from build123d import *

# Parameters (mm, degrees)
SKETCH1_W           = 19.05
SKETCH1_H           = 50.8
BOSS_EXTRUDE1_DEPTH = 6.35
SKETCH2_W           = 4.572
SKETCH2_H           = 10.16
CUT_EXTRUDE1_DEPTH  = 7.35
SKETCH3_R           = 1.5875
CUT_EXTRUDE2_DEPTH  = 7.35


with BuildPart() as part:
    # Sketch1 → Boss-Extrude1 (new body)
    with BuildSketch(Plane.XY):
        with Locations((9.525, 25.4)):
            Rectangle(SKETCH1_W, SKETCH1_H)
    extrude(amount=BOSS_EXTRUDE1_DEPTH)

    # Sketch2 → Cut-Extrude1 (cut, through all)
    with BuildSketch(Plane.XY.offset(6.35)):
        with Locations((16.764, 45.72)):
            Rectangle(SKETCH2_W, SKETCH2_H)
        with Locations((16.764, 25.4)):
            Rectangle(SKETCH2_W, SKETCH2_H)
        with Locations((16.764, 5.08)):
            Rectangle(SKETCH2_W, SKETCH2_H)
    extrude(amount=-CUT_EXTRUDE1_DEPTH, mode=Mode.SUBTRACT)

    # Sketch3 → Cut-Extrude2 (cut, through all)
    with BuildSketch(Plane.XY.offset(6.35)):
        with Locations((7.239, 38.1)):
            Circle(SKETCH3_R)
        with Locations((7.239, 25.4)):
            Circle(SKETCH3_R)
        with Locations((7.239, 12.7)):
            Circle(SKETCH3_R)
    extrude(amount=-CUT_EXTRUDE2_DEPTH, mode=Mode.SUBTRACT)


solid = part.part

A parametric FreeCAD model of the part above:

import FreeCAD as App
import Part
import Sketcher
Q = App.Units.Quantity

doc = App.newDocument("Part")
params = doc.addObject("Spreadsheet::Sheet", "Params")
for row, (alias, value) in enumerate([
    ("sketch1_height", "2 in"),
    ("sketch1_width", "0.75 in"),
    ("pad1_length", "0.25 in"),
    ("sketch2_height", "0.4 in"),
    ("sketch2_width", "0.18 in"),
    ("sketch3_diameter", "0.125 in"),
], start=1):
    params.set(f"A{row}", alias)
    params.set(f"B{row}", "=" + value)
    params.setAlias(f"B{row}", alias)

body = doc.addObject("PartDesign::Body", "Body")

# Sketch on XY plane
sketch1 = body.newObject("Sketcher::SketchObject", "Sketch")
sketch1.AttachmentSupport = (doc.getObject("XY_Plane"), [""])
sketch1.MapMode = "FlatFace"
sketch1.addGeometry([
    Part.LineSegment(App.Vector(0, 50.8, 0), App.Vector(0, 0, 0)),
    Part.LineSegment(App.Vector(0, 0, 0), App.Vector(19.05, 0, 0)),
    Part.LineSegment(App.Vector(19.05, 0, 0), App.Vector(19.05, 50.8, 0)),
    Part.LineSegment(App.Vector(19.05, 50.8, 0), App.Vector(0, 50.8, 0)),
], False)
sketch1.addConstraint([
    Sketcher.Constraint("Coincident", 0, 2, 1, 1),
    Sketcher.Constraint("Coincident", 1, 2, 2, 1),
    Sketcher.Constraint("Coincident", 2, 2, 3, 1),
    Sketcher.Constraint("Coincident", 3, 2, 0, 1),
    Sketcher.Constraint("Vertical", 0),
    Sketcher.Constraint("Horizontal", 1),
    Sketcher.Constraint("Vertical", 2),
    Sketcher.Constraint("Horizontal", 3),
    Sketcher.Constraint("Coincident", 0, 2, -1, 1),
    Sketcher.Constraint("DistanceY", 0, 2, 0, 1, Q("2 in")),
    Sketcher.Constraint("DistanceX", 1, 1, 1, 2, Q("0.75 in")),
])
sketch1.setExpression("Constraints[9]", "Params.sketch1_height")
sketch1.setExpression("Constraints[10]", "Params.sketch1_width")
pad1 = body.newObject("PartDesign::Pad", "Pad")
pad1.Profile = sketch1
pad1.setExpression("Length", "Params.pad1_length")

# Sketch on XY plane
sketch2 = body.newObject("Sketcher::SketchObject", "Sketch001")
sketch2.AttachmentSupport = (doc.getObject("XY_Plane"), [""])
sketch2.MapMode = "FlatFace"
sketch2.AttachmentOffset = App.Placement(App.Vector(0, 0, 0.25 * 25.4), App.Rotation())
sketch2.addGeometry([
    Part.LineSegment(App.Vector(14.478, 50.8, 0), App.Vector(14.478, 40.64, 0)),  # 0
    Part.LineSegment(App.Vector(14.478, 40.64, 0), App.Vector(19.05, 40.64, 0)),  # 1
    Part.LineSegment(App.Vector(19.05, 40.64, 0), App.Vector(19.05, 50.8, 0)),  # 2
    Part.LineSegment(App.Vector(19.05, 50.8, 0), App.Vector(14.478, 50.8, 0)),  # 3
    Part.LineSegment(App.Vector(14.478, 30.48, 0), App.Vector(14.478, 20.32, 0)),  # 4
    Part.LineSegment(App.Vector(14.478, 20.32, 0), App.Vector(19.05, 20.32, 0)),  # 5
    Part.LineSegment(App.Vector(19.05, 20.32, 0), App.Vector(19.05, 30.48, 0)),  # 6
    Part.LineSegment(App.Vector(19.05, 30.48, 0), App.Vector(14.478, 30.48, 0)),  # 7
    Part.LineSegment(App.Vector(14.478, 10.16, 0), App.Vector(14.478, 0, 0)),  # 8
    Part.LineSegment(App.Vector(14.478, 0, 0), App.Vector(19.05, 0, 0)),  # 9
    Part.LineSegment(App.Vector(19.05, 0, 0), App.Vector(19.05, 10.16, 0)),  # 10
    Part.LineSegment(App.Vector(19.05, 10.16, 0), App.Vector(14.478, 10.16, 0)),  # 11
], False)
sketch2.addConstraint([
    Sketcher.Constraint("Coincident", 0, 2, 1, 1),
    Sketcher.Constraint("Coincident", 1, 2, 2, 1),
    Sketcher.Constraint("Coincident", 2, 2, 3, 1),
    Sketcher.Constraint("Coincident", 3, 2, 0, 1),
    Sketcher.Constraint("Coincident", 4, 2, 5, 1),
    Sketcher.Constraint("Coincident", 5, 2, 6, 1),
    Sketcher.Constraint("Coincident", 6, 2, 7, 1),
    Sketcher.Constraint("Coincident", 7, 2, 4, 1),
    Sketcher.Constraint("Coincident", 8, 2, 9, 1),
    Sketcher.Constraint("Coincident", 9, 2, 10, 1),
    Sketcher.Constraint("Coincident", 10, 2, 11, 1),
    Sketcher.Constraint("Coincident", 11, 2, 8, 1),
    Sketcher.Constraint("Vertical", 0),
    Sketcher.Constraint("Horizontal", 1),
    Sketcher.Constraint("Vertical", 2),
    Sketcher.Constraint("Horizontal", 3),
    Sketcher.Constraint("Vertical", 4),
    Sketcher.Constraint("Horizontal", 5),
    Sketcher.Constraint("Vertical", 6),
    Sketcher.Constraint("Horizontal", 7),
    Sketcher.Constraint("Vertical", 8),
    Sketcher.Constraint("Horizontal", 9),
    Sketcher.Constraint("Vertical", 10),
    Sketcher.Constraint("Horizontal", 11),
    Sketcher.Constraint("PointOnObject", 8, 2, -1),
    Sketcher.Constraint("Vertical", 3, 2, 4, 2),
    Sketcher.Constraint("Vertical", 2, 2, 5, 2),
    Sketcher.Constraint("Vertical", 7, 2, 8, 2),
    Sketcher.Constraint("Vertical", 6, 2, 9, 2),
    Sketcher.Constraint("Equal", 2, 4),
    Sketcher.Constraint("Equal", 6, 8),
    Sketcher.Constraint("DistanceY", 0, 2, 0, 1, Q("0.4 in")),
    Sketcher.Constraint("DistanceY", -1, 1, 2, 2, Q("2 in")),
    Sketcher.Constraint("DistanceX", 1, 1, 1, 2, Q("0.18 in")),
    Sketcher.Constraint("DistanceY", -1, 1, 4, 2, Q("0.8 in")),
    Sketcher.Constraint("DistanceX", -1, 1, 0, 2, Q("0.57 in")),
])
sketch2.setExpression("Constraints[31]", "Params.sketch2_height")
sketch2.setExpression("Constraints[33]", "Params.sketch2_width")
pocket1 = body.newObject("PartDesign::Pocket", "Pocket")
pocket1.Profile = sketch2
pocket1.Type = "ThroughAll"

# Sketch on XY plane
sketch3 = body.newObject("Sketcher::SketchObject", "Sketch002")
sketch3.AttachmentSupport = (doc.getObject("XY_Plane"), [""])
sketch3.MapMode = "FlatFace"
sketch3.AttachmentOffset = App.Placement(App.Vector(0, 0, 0.25 * 25.4), App.Rotation())
sketch3.addGeometry([
    Part.Circle(App.Vector(7.239, 38.1, 0), App.Vector(0, 0, 1), 1.5875),
    Part.Circle(App.Vector(7.239, 25.4, 0), App.Vector(0, 0, 1), 1.5875),
    Part.Circle(App.Vector(7.239, 12.7, 0), App.Vector(0, 0, 1), 1.5875),
], False)
sketch3.addConstraint([
    Sketcher.Constraint("Equal", 0, 1),
    Sketcher.Constraint("Equal", 1, 2),
    Sketcher.Constraint("Vertical", 0, 3, 1, 3),
    Sketcher.Constraint("Vertical", 1, 3, 2, 3),
    Sketcher.Constraint("Diameter", 0, Q("0.125 in")),
    Sketcher.Constraint("DistanceY", -1, 1, 1, 3, Q("1 in")),
    Sketcher.Constraint("DistanceY", 2, 3, 0, 3, Q("1 in")),
    Sketcher.Constraint("DistanceY", -1, 1, 0, 3, Q("1.5 in")),
    Sketcher.Constraint("DistanceX", -1, 1, 0, 3, Q("0.285 in")),
])
sketch3.setExpression("Constraints[4]", "Params.sketch3_diameter")
pocket2 = body.newObject("PartDesign::Pocket", "Pocket001")
pocket2.Profile = sketch3
pocket2.Type = "ThroughAll"

doc.recompute()
